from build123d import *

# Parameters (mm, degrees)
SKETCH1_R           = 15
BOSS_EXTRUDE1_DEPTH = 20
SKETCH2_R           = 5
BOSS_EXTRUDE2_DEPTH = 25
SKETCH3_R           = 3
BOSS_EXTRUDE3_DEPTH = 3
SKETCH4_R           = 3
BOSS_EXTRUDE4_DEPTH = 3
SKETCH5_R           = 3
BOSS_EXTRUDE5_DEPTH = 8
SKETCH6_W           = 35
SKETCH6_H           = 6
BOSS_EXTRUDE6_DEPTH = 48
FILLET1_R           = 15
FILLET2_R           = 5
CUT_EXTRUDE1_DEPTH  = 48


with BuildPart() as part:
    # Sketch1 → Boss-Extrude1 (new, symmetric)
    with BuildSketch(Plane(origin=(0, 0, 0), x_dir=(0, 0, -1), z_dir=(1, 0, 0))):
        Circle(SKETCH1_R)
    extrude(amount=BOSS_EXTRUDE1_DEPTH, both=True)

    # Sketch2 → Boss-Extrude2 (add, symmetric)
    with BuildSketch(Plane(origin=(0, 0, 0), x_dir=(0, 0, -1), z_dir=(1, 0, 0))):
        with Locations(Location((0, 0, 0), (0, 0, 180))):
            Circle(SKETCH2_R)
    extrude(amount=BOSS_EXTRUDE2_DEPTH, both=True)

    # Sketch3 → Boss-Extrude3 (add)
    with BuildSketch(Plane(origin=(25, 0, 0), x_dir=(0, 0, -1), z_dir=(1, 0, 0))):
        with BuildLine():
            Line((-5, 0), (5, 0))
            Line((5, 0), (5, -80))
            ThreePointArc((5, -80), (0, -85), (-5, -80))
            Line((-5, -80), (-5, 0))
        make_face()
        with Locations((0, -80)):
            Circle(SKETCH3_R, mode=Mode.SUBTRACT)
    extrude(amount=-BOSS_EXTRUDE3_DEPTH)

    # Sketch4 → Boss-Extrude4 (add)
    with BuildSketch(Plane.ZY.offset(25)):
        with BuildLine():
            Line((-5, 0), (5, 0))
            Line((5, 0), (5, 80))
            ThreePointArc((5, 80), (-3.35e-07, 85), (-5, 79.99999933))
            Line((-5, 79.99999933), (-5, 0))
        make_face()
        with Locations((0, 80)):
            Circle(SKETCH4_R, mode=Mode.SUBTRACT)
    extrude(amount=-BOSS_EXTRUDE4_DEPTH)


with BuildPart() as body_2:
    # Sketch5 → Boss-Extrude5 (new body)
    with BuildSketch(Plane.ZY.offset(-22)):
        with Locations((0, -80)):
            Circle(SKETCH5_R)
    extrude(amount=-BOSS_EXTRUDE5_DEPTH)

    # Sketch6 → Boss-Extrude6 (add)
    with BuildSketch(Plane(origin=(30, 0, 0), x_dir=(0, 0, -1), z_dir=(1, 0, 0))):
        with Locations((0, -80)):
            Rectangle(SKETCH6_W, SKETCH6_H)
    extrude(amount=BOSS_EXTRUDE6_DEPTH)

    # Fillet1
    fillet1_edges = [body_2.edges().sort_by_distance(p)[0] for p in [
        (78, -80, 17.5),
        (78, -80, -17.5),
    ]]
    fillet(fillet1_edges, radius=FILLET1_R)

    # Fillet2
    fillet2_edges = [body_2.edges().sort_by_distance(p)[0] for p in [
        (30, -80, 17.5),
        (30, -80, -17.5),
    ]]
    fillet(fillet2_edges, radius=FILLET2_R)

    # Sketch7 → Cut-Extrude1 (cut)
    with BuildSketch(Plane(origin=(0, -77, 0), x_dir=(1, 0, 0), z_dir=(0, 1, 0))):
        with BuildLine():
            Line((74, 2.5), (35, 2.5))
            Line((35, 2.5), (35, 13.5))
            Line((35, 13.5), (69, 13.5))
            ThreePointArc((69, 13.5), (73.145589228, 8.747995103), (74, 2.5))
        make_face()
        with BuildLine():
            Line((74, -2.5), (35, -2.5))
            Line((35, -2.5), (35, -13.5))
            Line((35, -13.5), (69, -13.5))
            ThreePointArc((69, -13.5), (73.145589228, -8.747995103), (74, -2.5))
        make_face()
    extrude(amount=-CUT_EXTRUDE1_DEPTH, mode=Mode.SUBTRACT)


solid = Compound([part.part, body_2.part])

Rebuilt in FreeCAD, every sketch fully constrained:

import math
import FreeCAD as App
import Part
import Sketcher
from FreeCAD import Vector


def edges_at(feature, points):
    """Names of the edges that pass closest to the given points."""
    edges = feature.Shape.Edges
    near = lambda p: min(range(len(edges)), key=lambda i: edges[i].distToShape(Part.Vertex(*p))[0])
    return sorted({f"Edge{near(p) + 1}" for p in points})

doc = App.newDocument("Part")
params = doc.addObject("Spreadsheet::Sheet", "Params")
for row, (alias, value) in enumerate([
    ("sketch1_diameter", "30 mm"),
    ("pad1_length", "40 mm"),
    ("sketch2_diameter", "10 mm"),
    ("pad2_length", "50 mm"),
    ("sketch3_diameter", "6 mm"),
    ("sketch3_radius", "5 mm"),
    ("sketch3_width", "80 mm"),
    ("pad3_length", "3 mm"),
    ("sketch4_diameter", "6 mm"),
    ("sketch4_radius", "5 mm"),
    ("sketch4_width", "80 mm"),
    ("pad4_length", "3 mm"),
    ("sketch5_diameter", "6 mm"),
    ("pad5_length", "8 mm"),
    ("sketch6_width", "6 mm"),
    ("sketch6_height", "35 mm"),
    ("pad6_length", "48 mm"),
    ("fillet_radius", "15 mm"),
    ("fillet2_radius", "5 mm"),
    ("sketch7_radius", "11 mm"),
    ("sketch7_width", "39 mm"),
    ("sketch7_width2", "34 mm"),
    ("sketch7_height", "11 mm"),
    ("pocket1_length", "48 mm"),
], start=1):
    params.set(f"A{row}", alias)
    params.set(f"B{row}", "=" + value)
    params.setAlias(f"B{row}", alias)

body = doc.addObject("PartDesign::Body", "Body")

# Sketch on YZ plane
sketch1 = body.newObject("Sketcher::SketchObject", "Sketch")
sketch1.AttachmentSupport = (doc.getObject("YZ_Plane"), [""])
sketch1.MapMode = "FlatFace"
sketch1.addGeometry(Part.Circle(Vector(0, 0, 0), Vector(0, 0, 1), 15), False)
sketch1.addConstraint([
    Sketcher.Constraint("Coincident", 0, 3, -1, 1),
    Sketcher.Constraint("Diameter", 0, 30.0),
])
sketch1.setExpression("Constraints[1]", "Params.sketch1_diameter")
pad1 = body.newObject("PartDesign::Pad", "Pad")
pad1.Profile = sketch1
pad1.setExpression("Length", "Params.pad1_length")
pad1.Midplane = True

# Sketch on YZ plane
sketch2 = body.newObject("Sketcher::SketchObject", "Sketch001")
sketch2.AttachmentSupport = (doc.getObject("YZ_Plane"), [""])
sketch2.MapMode = "FlatFace"
sketch2.addGeometry(Part.Circle(Vector(0, 0, 0), Vector(0, 0, 1), 5), False)
sketch2.addConstraint([
    Sketcher.Constraint("Coincident", 0, 3, -1, 1),
    Sketcher.Constraint("Diameter", 0, 10.0),
])
sketch2.setExpression("Constraints[1]", "Params.sketch2_diameter")
pad2 = body.newObject("PartDesign::Pad", "Pad001")
pad2.Profile = sketch2
pad2.setExpression("Length", "Params.pad2_length")
pad2.Midplane = True

# Sketch on YZ plane
sketch3 = body.newObject("Sketcher::SketchObject", "Sketch002")
sketch3.AttachmentSupport = (doc.getObject("YZ_Plane"), [""])
sketch3.MapMode = "FlatFace"
sketch3.AttachmentOffset = App.Placement(Vector(0, 0, 25), App.Rotation())
sketch3.addGeometry([
    Part.LineSegment(Vector(0, -5, 0), Vector(0, 5, 0)),  # 0
    Part.LineSegment(Vector(0, 5, 0), Vector(-80, 5, 0)),  # 1
    Part.ArcOfCircle(Part.Circle(Vector(-80, 0, 0), Vector(0, 0, 1), 5), math.radians(90), math.radians(270)),  # 2
    Part.LineSegment(Vector(-80, -5, 0), Vector(0, -5, 0)),  # 3
    Part.Circle(Vector(-80, 0, 0), Vector(0, 0, 1), 3),  # 4
], False)
sketch3.addConstraint([
    Sketcher.Constraint("Coincident", 0, 2, 1, 1),
    Sketcher.Constraint("Tangent", 1, 2, 2, 1),
    Sketcher.Constraint("Tangent", 2, 2, 3, 1),
    Sketcher.Constraint("Coincident", 3, 2, 0, 1),
    Sketcher.Constraint("Vertical", 0),
    Sketcher.Constraint("Horizontal", 1),
    Sketcher.Constraint("Horizontal", 3),
    Sketcher.Constraint("Coincident", 4, 3, 2, 3),
    Sketcher.Constraint("Symmetric", 0, 2, 3, 2, -1, 1),
    Sketcher.Constraint("Diameter", 4, 6.0),
    Sketcher.Constraint("Radius", 2, 5.0),
    Sketcher.Constraint("DistanceX", 1, 2, 1, 1, 80.0),
])
sketch3.setExpression("Constraints[9]", "Params.sketch3_diameter")
sketch3.setExpression("Constraints[10]", "Params.sketch3_radius")
sketch3.setExpression("Constraints[11]", "Params.sketch3_width")
pad3 = body.newObject("PartDesign::Pad", "Pad002")
pad3.Profile = sketch3
pad3.setExpression("Length", "Params.pad3_length")
pad3.Reversed = True

# Sketch on YZ plane
sketch4 = body.newObject("Sketcher::SketchObject", "Sketch003")
sketch4.AttachmentSupport = (doc.getObject("YZ_Plane"), [""])
sketch4.MapMode = "FlatFace"
sketch4.AttachmentOffset = App.Placement(Vector(0, 0, -25), App.Rotation())
sketch4.addGeometry([
    Part.LineSegment(Vector(0, -5, 0), Vector(0, 5, 0)),  # 0
    Part.LineSegment(Vector(0, 5, 0), Vector(80, 5, 0)),  # 1
    Part.ArcOfCircle(Part.Circle(Vector(80, 0, 0), Vector(0, 0, 1), 5), math.radians(-90), math.radians(90)),  # 2
    Part.LineSegment(Vector(80, -5, 0), Vector(0, -5, 0)),  # 3
    Part.Circle(Vector(80, 0, 0), Vector(0, 0, 1), 3),  # 4
], False)
sketch4.addConstraint([
    Sketcher.Constraint("Coincident", 0, 2, 1, 1),
    Sketcher.Constraint("Tangent", 1, 2, 2, 2),
    Sketcher.Constraint("Tangent", 2, 1, 3, 1),
    Sketcher.Constraint("Coincident", 3, 2, 0, 1),
    Sketcher.Constraint("Vertical", 0),
    Sketcher.Constraint("Horizontal", 1),
    Sketcher.Constraint("Horizontal", 3),
    Sketcher.Constraint("Coincident", 4, 3, 2, 3),
    Sketcher.Constraint("Symmetric", 0, 2, 3, 2, -1, 1),
    Sketcher.Constraint("Diameter", 4, 6.0),
    Sketcher.Constraint("Radius", 2, 5.0),
    Sketcher.Constraint("DistanceX", 1, 1, 1, 2, 80.0),
])
sketch4.setExpression("Constraints[9]", "Params.sketch4_diameter")
sketch4.setExpression("Constraints[10]", "Params.sketch4_radius")
sketch4.setExpression("Constraints[11]", "Params.sketch4_width")
pad4 = body.newObject("PartDesign::Pad", "Pad003")
pad4.Profile = sketch4
pad4.setExpression("Length", "Params.pad4_length")
body2 = doc.addObject("PartDesign::Body", "Body001")

# Sketch on YZ plane
sketch5 = body2.newObject("Sketcher::SketchObject", "Sketch004")
sketch5.AttachmentSupport = (doc.getObject("YZ_Plane001"), [""])
sketch5.MapMode = "FlatFace"
sketch5.AttachmentOffset = App.Placement(Vector(0, 0, 22), App.Rotation())
sketch5.addGeometry(Part.Circle(Vector(-80, 0, 0), Vector(0, 0, 1), 3), False)
sketch5.addConstraint([
    Sketcher.Constraint("PointOnObject", 0, 3, -1),
    Sketcher.Constraint("Diameter", 0, 6.0),
    Sketcher.Constraint("DistanceX", 0, 3, -1, 1, 80.0),
])
sketch5.setExpression("Constraints[1]", "Params.sketch5_diameter")
pad5 = body2.newObject("PartDesign::Pad", "Pad004")
pad5.Profile = sketch5
pad5.setExpression("Length", "Params.pad5_length")

# Sketch on YZ plane
sketch6 = body2.newObject("Sketcher::SketchObject", "Sketch005")
sketch6.AttachmentSupport = (doc.getObject("YZ_Plane001"), [""])
sketch6.MapMode = "FlatFace"
sketch6.AttachmentOffset = App.Placement(Vector(0, 0, 30), App.Rotation())
sketch6.addGeometry([
    Part.LineSegment(Vector(-77, 18, 0), Vector(-83, 18, 0)),
    Part.LineSegment(Vector(-83, 18, 0), Vector(-83, -18, 0)),
    Part.LineSegment(Vector(-83, -18, 0), Vector(-77, -18, 0)),
    Part.LineSegment(Vector(-77, -18, 0), Vector(-77, 18, 0)),
], False)
sketch6.addConstraint([
    Sketcher.Constraint("Coincident", 0, 2, 1, 1),
    Sketcher.Constraint("Coincident", 1, 2, 2, 1),
    Sketcher.Constraint("Coincident", 2, 2, 3, 1),
    Sketcher.Constraint("Coincident", 3, 2, 0, 1),
    Sketcher.Constraint("Horizontal", 0),
    Sketcher.Constraint("Vertical", 1),
    Sketcher.Constraint("Horizontal", 2),
    Sketcher.Constraint("Vertical", 3),
    Sketcher.Constraint("DistanceX", 0, 2, 0, 1, 6.0),
    Sketcher.Constraint("DistanceY", 1, 2, 1, 1, 35.0),
    Sketcher.Constraint("DistanceX", 0, 2, -1, 1, 83.0),
    Sketcher.Constraint("DistanceY", -1, 1, 0, 2, 17.5),
])
sketch6.setExpression("Constraints[8]", "Params.sketch6_width")
sketch6.setExpression("Constraints[9]", "Params.sketch6_height")
pad6 = body2.newObject("PartDesign::Pad", "Pad005")
pad6.Profile = sketch6
pad6.setExpression("Length", "Params.pad6_length")
doc.recompute()

fillet = body2.newObject("PartDesign::Fillet", "Fillet")
fillet.Base = (pad6, edges_at(pad6, [(78, -80, 17.5), (78, -80, -17.5)]))
fillet.setExpression("Radius", "Params.fillet_radius")
doc.recompute()

fillet2 = body2.newObject("PartDesign::Fillet", "Fillet001")
fillet2.Base = (fillet, edges_at(fillet, [(30, -80, 17.5), (30, -80, -17.5)]))
fillet2.setExpression("Radius", "Params.fillet2_radius")

# Sketch on XZ plane
sketch7 = body2.newObject("Sketcher::SketchObject", "Sketch006")
sketch7.AttachmentSupport = (doc.getObject("XZ_Plane001"), [""])
sketch7.MapMode = "FlatFace"
sketch7.AttachmentOffset = App.Placement(Vector(0, 0, 77), App.Rotation())
sketch7.addGeometry([
    Part.LineSegment(Vector(35, -2, 0), Vector(74, -2, 0)),  # 0
    Part.ArcOfCircle(Part.Circle(Vector(63, -4, 0), Vector(0, 0, 1), 11), math.radians(-58), math.radians(9)),  # 1
    Part.LineSegment(Vector(69, -14, 0), Vector(35, -14, 0)),  # 2
    Part.LineSegment(Vector(35, -14, 0), Vector(35, -2, 0)),  # 3
    Part.LineSegment(Vector(74, 2, 0), Vector(35, 2, 0)),  # 4
    Part.LineSegment(Vector(35, 2, 0), Vector(35, 14, 0)),  # 5
    Part.LineSegment(Vector(35, 14, 0), Vector(69, 14, 0)),  # 6
    Part.ArcOfCircle(Part.Circle(Vector(63, 4, 0), Vector(0, 0, 1), 11), math.radians(-9), math.radians(58)),  # 7
], False)
sketch7.addConstraint([
    Sketcher.Constraint("Coincident", 0, 2, 1, 2),
    Sketcher.Constraint("Coincident", 1, 1, 2, 1),
    Sketcher.Constraint("Coincident", 2, 2, 3, 1),
    Sketcher.Constraint("Coincident", 3, 2, 0, 1),
    Sketcher.Constraint("Coincident", 4, 2, 5, 1),
    Sketcher.Constraint("Coincident", 5, 2, 6, 1),
    Sketcher.Constraint("Coincident", 6, 2, 7, 2),
    Sketcher.Constraint("Coincident", 7, 1, 4, 1),
    Sketcher.Constraint("Horizontal", 0),
    Sketcher.Constraint("Horizontal", 2),
    Sketcher.Constraint("Vertical", 3),
    Sketcher.Constraint("Horizontal", 4),
    Sketcher.Constraint("Vertical", 5),
    Sketcher.Constraint("Horizontal", 6),
    Sketcher.Constraint("Equal", 1, 7),
    Sketcher.Constraint("Symmetric", 1, 3, 7, 3, -1),
    Sketcher.Constraint("Symmetric", 3, 2, 4, 2, -1),
    Sketcher.Constraint("Vertical", 1, 1, 6, 2),
    Sketcher.Constraint("Radius", 1, 11.0),
    Sketcher.Constraint("DistanceX", 0, 1, 0, 2, 39.0),
    Sketcher.Constraint("DistanceX", 2, 2, 2, 1, 34.0),
    Sketcher.Constraint("DistanceY", 3, 1, 3, 2, 11.0),
    Sketcher.Constraint("DistanceX", -1, 1, 0, 2, 74.0),
    Sketcher.Constraint("DistanceY", 3, 2, 4, 2, 5.0),
])
sketch7.setExpression("Constraints[18]", "Params.sketch7_radius")
sketch7.setExpression("Constraints[19]", "Params.sketch7_width")
sketch7.setExpression("Constraints[20]", "Params.sketch7_width2")
sketch7.setExpression("Constraints[21]", "Params.sketch7_height")
pocket1 = body2.newObject("PartDesign::Pocket", "Pocket")
pocket1.Profile = sketch7
pocket1.setExpression("Length", "Params.pocket1_length")
pocket1.Reversed = True

doc.recompute()
